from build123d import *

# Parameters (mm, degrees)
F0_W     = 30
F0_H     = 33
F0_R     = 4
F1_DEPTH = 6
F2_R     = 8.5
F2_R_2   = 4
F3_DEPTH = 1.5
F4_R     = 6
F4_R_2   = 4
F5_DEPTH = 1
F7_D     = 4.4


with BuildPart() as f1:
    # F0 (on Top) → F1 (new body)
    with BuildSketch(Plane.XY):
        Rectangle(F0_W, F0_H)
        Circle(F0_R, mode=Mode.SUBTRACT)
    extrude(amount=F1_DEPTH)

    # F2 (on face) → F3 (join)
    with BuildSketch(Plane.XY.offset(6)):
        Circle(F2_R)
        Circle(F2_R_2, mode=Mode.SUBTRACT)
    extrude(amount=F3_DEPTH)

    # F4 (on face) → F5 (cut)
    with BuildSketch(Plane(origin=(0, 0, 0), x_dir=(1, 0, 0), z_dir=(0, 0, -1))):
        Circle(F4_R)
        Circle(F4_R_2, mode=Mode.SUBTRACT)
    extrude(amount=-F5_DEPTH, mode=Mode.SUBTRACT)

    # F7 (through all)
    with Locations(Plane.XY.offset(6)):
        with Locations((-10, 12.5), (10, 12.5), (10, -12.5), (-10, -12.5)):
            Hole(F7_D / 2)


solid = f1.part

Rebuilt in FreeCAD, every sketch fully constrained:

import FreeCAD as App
import Part
import Sketcher

doc = App.newDocument("Part")
body = doc.addObject("PartDesign::Body", "Body")

sketch1 = body.newObject("Sketcher::SketchObject", "Sketch")
sketch1.AttachmentSupport = (doc.getObject("XY_Plane"), [""])
sketch1.MapMode = "FlatFace"
sketch1.addGeometry(Part.LineSegment(App.Vector(-15, 16.5, 0), App.Vector(-15, -16.5, 0)), False)
sketch1.addGeometry(Part.LineSegment(App.Vector(-15, -16.5, 0), App.Vector(15, -16.5, 0)), False)
sketch1.addGeometry(Part.LineSegment(App.Vector(15, -16.5, 0), App.Vector(15, 16.5, 0)), False)
sketch1.addGeometry(Part.LineSegment(App.Vector(15, 16.5, 0), App.Vector(-15, 16.5, 0)), False)
sketch1.addGeometry(Part.Circle(App.Vector(0, 0, 0), App.Vector(0, 0, 1), 4), False)
sketch1.addConstraint(Sketcher.Constraint("Coincident", 0, 2, 1, 1))
sketch1.addConstraint(Sketcher.Constraint("Coincident", 1, 2, 2, 1))
sketch1.addConstraint(Sketcher.Constraint("Coincident", 2, 2, 3, 1))
sketch1.addConstraint(Sketcher.Constraint("Coincident", 3, 2, 0, 1))
sketch1.addConstraint(Sketcher.Constraint("Vertical", 0))
sketch1.addConstraint(Sketcher.Constraint("Horizontal", 1))
sketch1.addConstraint(Sketcher.Constraint("Vertical", 2))
sketch1.addConstraint(Sketcher.Constraint("Horizontal", 3))
sketch1.addConstraint(Sketcher.Constraint("Coincident", 4, 3, -1, 1))
sketch1.addConstraint(Sketcher.Constraint("Symmetric", 0, 2, 2, 2, -1, 1))
sketch1.addConstraint(Sketcher.Constraint("Diameter", 4, 8.0))
sketch1.addConstraint(Sketcher.Constraint("DistanceX", 1, 1, 1, 2, 30.0))
sketch1.addConstraint(Sketcher.Constraint("DistanceY", 0, 2, 0, 1, 33.0))
pad1 = body.newObject("PartDesign::Pad", "Pad")
pad1.Profile = sketch1
pad1.Length = 6

sketch2 = body.newObject("Sketcher::SketchObject", "Sketch001")
sketch2.AttachmentSupport = (doc.getObject("XY_Plane"), [""])
sketch2.MapMode = "FlatFace"
sketch2.AttachmentOffset = App.Placement(App.Vector(0, 0, 6), App.Rotation())
sketch2.addGeometry(Part.Circle(App.Vector(0, 0, 0), App.Vector(0, 0, 1), 8.5), False)
sketch2.addGeometry(Part.Circle(App.Vector(0, 0, 0), App.Vector(0, 0, 1), 4), False)
sketch2.addConstraint(Sketcher.Constraint("Coincident", 0, 3, -1, 1))
sketch2.addConstraint(Sketcher.Constraint("Coincident", 1, 3, -1, 1))
sketch2.addConstraint(Sketcher.Constraint("Diameter", 0, 17.0))
sketch2.addConstraint(Sketcher.Constraint("Diameter", 1, 8.0))
pad2 = body.newObject("PartDesign::Pad", "Pad001")
pad2.Profile = sketch2
pad2.Length = 1.5

sketch3 = body.newObject("Sketcher::SketchObject", "Sketch002")
sketch3.AttachmentSupport = (doc.getObject("XY_Plane"), [""])
sketch3.MapMode = "FlatFace"
sketch3.addGeometry(Part.Circle(App.Vector(0, 0, 0), App.Vector(0, 0, 1), 6), False)
sketch3.addGeometry(Part.Circle(App.Vector(0, 0, 0), App.Vector(0, 0, 1), 4), False)
sketch3.addConstraint(Sketcher.Constraint("Coincident", 0, 3, -1, 1))
sketch3.addConstraint(Sketcher.Constraint("Coincident", 1, 3, -1, 1))
sketch3.addConstraint(Sketcher.Constraint("Diameter", 0, 12.0))
sketch3.addConstraint(Sketcher.Constraint("Diameter", 1, 8.0))
pocket1 = body.newObject("PartDesign::Pocket", "Pocket")
pocket1.Profile = sketch3
pocket1.Length = 1
pocket1.Reversed = True

sketch4 = body.newObject("Sketcher::SketchObject", "Sketch003")
sketch4.AttachmentSupport = (doc.getObject("XY_Plane"), [""])
sketch4.MapMode = "FlatFace"
sketch4.AttachmentOffset = App.Placement(App.Vector(0, 0, 6), App.Rotation())
sketch4.addGeometry(Part.Circle(App.Vector(-10, 12.5, 0), App.Vector(0, 0, 1), 2.2), False)
sketch4.addGeometry(Part.Circle(App.Vector(10, 12.5, 0), App.Vector(0, 0, 1), 2.2), False)
sketch4.addGeometry(Part.Circle(App.Vector(10, -12.5, 0), App.Vector(0, 0, 1), 2.2), False)
sketch4.addGeometry(Part.Circle(App.Vector(-10, -12.5, 0), App.Vector(0, 0, 1), 2.2), False)
sketch4.addConstraint(Sketcher.Constraint("Equal", 0, 1))
sketch4.addConstraint(Sketcher.Constraint("Equal", 1, 2))
sketch4.addConstraint(Sketcher.Constraint("Equal", 2, 3))
sketch4.addConstraint(Sketcher.Constraint("Symmetric", 0, 3, 2, 3, -1, 1))
sketch4.addConstraint(Sketcher.Constraint("Symmetric", 1, 3, 3, 3, -1, 1))
sketch4.addConstraint(Sketcher.Constraint("Symmetric", 0, 3, 1, 3, -2))
sketch4.addConstraint(Sketcher.Constraint("Diameter", 0, 4.4))
sketch4.addConstraint(Sketcher.Constraint("DistanceX", 0, 3, -1, 1, 10.0))
sketch4.addConstraint(Sketcher.Constraint("DistanceY", 2, 3, 1, 3, 25.0))
doc.recompute()
hole = body.newObject("PartDesign::Hole", "Hole")
hole.Profile = sketch4
hole.ThreadType = "None"
hole.Diameter = 4.4
hole.DepthType = "ThroughAll"

doc.recompute()
